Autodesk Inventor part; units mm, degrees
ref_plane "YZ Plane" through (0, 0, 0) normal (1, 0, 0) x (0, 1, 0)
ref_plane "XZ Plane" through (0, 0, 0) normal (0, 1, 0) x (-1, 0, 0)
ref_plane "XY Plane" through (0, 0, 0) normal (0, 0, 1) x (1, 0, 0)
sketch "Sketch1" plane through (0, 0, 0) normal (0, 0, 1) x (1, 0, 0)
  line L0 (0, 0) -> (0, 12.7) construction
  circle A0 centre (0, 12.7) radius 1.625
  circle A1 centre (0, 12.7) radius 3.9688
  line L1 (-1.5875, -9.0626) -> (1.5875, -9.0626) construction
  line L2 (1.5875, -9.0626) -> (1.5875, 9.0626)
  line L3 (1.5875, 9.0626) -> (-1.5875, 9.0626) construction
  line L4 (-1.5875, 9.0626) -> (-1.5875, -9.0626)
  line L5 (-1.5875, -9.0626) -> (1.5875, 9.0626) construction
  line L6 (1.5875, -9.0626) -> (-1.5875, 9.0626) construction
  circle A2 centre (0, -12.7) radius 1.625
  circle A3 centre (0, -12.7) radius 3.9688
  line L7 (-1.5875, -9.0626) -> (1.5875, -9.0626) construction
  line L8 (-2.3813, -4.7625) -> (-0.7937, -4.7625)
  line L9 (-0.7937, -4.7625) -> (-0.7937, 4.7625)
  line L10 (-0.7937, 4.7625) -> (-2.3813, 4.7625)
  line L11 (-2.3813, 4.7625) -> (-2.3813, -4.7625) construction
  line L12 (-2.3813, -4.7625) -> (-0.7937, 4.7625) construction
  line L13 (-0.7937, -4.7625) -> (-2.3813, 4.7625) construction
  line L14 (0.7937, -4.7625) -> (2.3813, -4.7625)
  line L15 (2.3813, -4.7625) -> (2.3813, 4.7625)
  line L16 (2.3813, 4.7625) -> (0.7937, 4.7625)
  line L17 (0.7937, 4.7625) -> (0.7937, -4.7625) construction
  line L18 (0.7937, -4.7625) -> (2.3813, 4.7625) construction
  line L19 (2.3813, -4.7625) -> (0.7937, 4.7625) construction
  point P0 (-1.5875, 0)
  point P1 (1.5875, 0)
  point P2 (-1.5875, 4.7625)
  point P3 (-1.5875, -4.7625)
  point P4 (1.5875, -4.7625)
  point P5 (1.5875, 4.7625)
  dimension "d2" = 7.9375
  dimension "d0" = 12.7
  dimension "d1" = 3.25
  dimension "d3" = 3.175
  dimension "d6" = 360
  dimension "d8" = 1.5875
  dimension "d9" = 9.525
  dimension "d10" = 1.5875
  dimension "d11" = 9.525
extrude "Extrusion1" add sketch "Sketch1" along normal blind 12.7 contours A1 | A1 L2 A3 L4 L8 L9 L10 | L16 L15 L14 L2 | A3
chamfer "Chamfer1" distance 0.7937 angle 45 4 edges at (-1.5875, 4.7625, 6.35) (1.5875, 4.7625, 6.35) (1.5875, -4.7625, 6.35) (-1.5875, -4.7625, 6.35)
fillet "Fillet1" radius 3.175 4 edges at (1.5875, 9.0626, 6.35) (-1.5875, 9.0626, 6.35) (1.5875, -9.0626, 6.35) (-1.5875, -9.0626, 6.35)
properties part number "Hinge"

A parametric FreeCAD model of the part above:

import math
import FreeCAD as App
import Part
import Sketcher
from FreeCAD import Vector
Q = App.Units.Quantity


def edges_at(feature, points):
    """Names of the edges that pass closest to the given points."""
    edges = feature.Shape.Edges
    near = lambda p: min(range(len(edges)), key=lambda i: edges[i].distToShape(Part.Vertex(*p))[0])
    return sorted({f"Edge{near(p) + 1}" for p in points})

doc = App.newDocument("Part")
params = doc.addObject("Spreadsheet::Sheet", "Params")
for row, (alias, value) in enumerate([
    ("sketch1_radius", "0.156252 in"),
    ("sketch1_height", "0.375 in"),
    ("sketch1_width", "0.031252 in"),
    ("pad1_length", "0.5 in"),
    ("chamfer_size", "0.031248 in"),
    ("fillet_radius", "0.125 in"),
], start=1):
    params.set(f"A{row}", alias)
    params.set(f"B{row}", "=" + value)
    params.setAlias(f"B{row}", alias)

body = doc.addObject("PartDesign::Body", "Body")

# Sketch on XY plane
sketch1 = body.newObject("Sketcher::SketchObject", "Sketch")
sketch1.AttachmentSupport = (doc.getObject("XY_Plane"), [""])
sketch1.MapMode = "FlatFace"
sketch1.addGeometry([
    Part.ArcOfCircle(Part.Circle(Vector(0, 12.7, 0), Vector(0, 0, 1), 4), math.radians(-66), math.radians(246)),  # 0
    Part.LineSegment(Vector(-1.6, 9.1, 0), Vector(-1.6, 4.8, 0)),  # 1
    Part.LineSegment(Vector(-1.6, 4.8, 0), Vector(-0.8, 4.8, 0)),  # 2
    Part.LineSegment(Vector(-0.8, 4.8, 0), Vector(-0.8, -4.8, 0)),  # 3
    Part.LineSegment(Vector(-0.8, -4.8, 0), Vector(-1.6, -4.8, 0)),  # 4
    Part.LineSegment(Vector(-1.6, -4.8, 0), Vector(-1.6, -9.1, 0)),  # 5
    Part.ArcOfCircle(Part.Circle(Vector(0, -12.7, 0), Vector(0, 0, 1), 4), math.radians(114), math.radians(426)),  # 6
    Part.LineSegment(Vector(1.6, -9.1, 0), Vector(1.6, -4.8, 0)),  # 7
    Part.LineSegment(Vector(1.6, -4.8, 0), Vector(2.4, -4.8, 0)),  # 8
    Part.LineSegment(Vector(2.4, -4.8, 0), Vector(2.4, 4.8, 0)),  # 9
    Part.LineSegment(Vector(2.4, 4.8, 0), Vector(1.6, 4.8, 0)),  # 10
    Part.LineSegment(Vector(1.6, 4.8, 0), Vector(1.6, 9.1, 0)),  # 11
    Part.Circle(Vector(0, 12.7, 0), Vector(0, 0, 1), 1.6),  # 12
    Part.Circle(Vector(0, -12.7, 0), Vector(0, 0, 1), 1.6),  # 13
], False)
sketch1.addConstraint([
    Sketcher.Constraint("Coincident", 0, 2, 1, 1),
    Sketcher.Constraint("Coincident", 1, 2, 2, 1),
    Sketcher.Constraint("Coincident", 2, 2, 3, 1),
    Sketcher.Constraint("Coincident", 3, 2, 4, 1),
    Sketcher.Constraint("Coincident", 4, 2, 5, 1),
    Sketcher.Constraint("Coincident", 5, 2, 6, 1),
    Sketcher.Constraint("Coincident", 6, 2, 7, 1),
    Sketcher.Constraint("Coincident", 7, 2, 8, 1),
    Sketcher.Constraint("Coincident", 8, 2, 9, 1),
    Sketcher.Constraint("Coincident", 9, 2, 10, 1),
    Sketcher.Constraint("Coincident", 10, 2, 11, 1),
    Sketcher.Constraint("Coincident", 11, 2, 0, 1),
    Sketcher.Constraint("Vertical", 1),
    Sketcher.Constraint("Horizontal", 2),
    Sketcher.Constraint("Vertical", 3),
    Sketcher.Constraint("Horizontal", 4),
    Sketcher.Constraint("Vertical", 5),
    Sketcher.Constraint("Vertical", 7),
    Sketcher.Constraint("Horizontal", 8),
    Sketcher.Constraint("Vertical", 9),
    Sketcher.Constraint("Horizontal", 10),
    Sketcher.Constraint("Vertical", 11),
    Sketcher.Constraint("Coincident", 12, 3, 0, 3),
    Sketcher.Constraint("Coincident", 13, 3, 6, 3),
    Sketcher.Constraint("Equal", 0, 6),
    Sketcher.Constraint("Equal", 12, 13),
    Sketcher.Constraint("Symmetric", 0, 3, 6, 3, -1, 1),
    Sketcher.Constraint("Symmetric", 1, 2, 7, 2, -1, 1),
    Sketcher.Constraint("Symmetric", 4, 2, 10, 2, -1, 1),
    Sketcher.Constraint("Symmetric", 5, 2, 6, 2, -2),
    Sketcher.Constraint("Horizontal", 4, 2, 7, 2),
    Sketcher.Constraint("Equal", 4, 8),
    Sketcher.Constraint("Radius", 0, Q("0.156252 in")),
    Sketcher.Constraint("DistanceY", -1, 1, 0, 3, Q("0.5 in")),
    Sketcher.Constraint("Diameter", 12, Q("3.25 mm")),
    Sketcher.Constraint("DistanceY", 3, 2, 3, 1, Q("0.375 in")),
    Sketcher.Constraint("DistanceX", 0, 2, -1, 1, Q("0.0625 in")),
    Sketcher.Constraint("DistanceX", 2, 1, 2, 2, Q("0.031252 in")),
])
sketch1.setExpression("Constraints[32]", "Params.sketch1_radius")
sketch1.setExpression("Constraints[35]", "Params.sketch1_height")
sketch1.setExpression("Constraints[37]", "Params.sketch1_width")
pad1 = body.newObject("PartDesign::Pad", "Pad")
pad1.Profile = sketch1
pad1.setExpression("Length", "Params.pad1_length")
doc.recompute()

chamfer = body.newObject("PartDesign::Chamfer", "Chamfer")
chamfer.Base = (pad1, edges_at(pad1, [
    (-1.587, 4.763, 6.35),
    (1.587, 4.763, 6.35),
    (1.587, -4.763, 6.35),
    (-1.587, -4.763, 6.35),
]))
chamfer.setExpression("Size", "Params.chamfer_size")
doc.recompute()

fillet = body.newObject("PartDesign::Fillet", "Fillet")
fillet.Base = (chamfer, edges_at(chamfer, [
    (1.587, 9.063, 6.35),
    (-1.587, 9.063, 6.35),
    (1.587, -9.063, 6.35),
    (-1.587, -9.063, 6.35),
]))
fillet.setExpression("Radius", "Params.fillet_radius")

doc.recompute()
